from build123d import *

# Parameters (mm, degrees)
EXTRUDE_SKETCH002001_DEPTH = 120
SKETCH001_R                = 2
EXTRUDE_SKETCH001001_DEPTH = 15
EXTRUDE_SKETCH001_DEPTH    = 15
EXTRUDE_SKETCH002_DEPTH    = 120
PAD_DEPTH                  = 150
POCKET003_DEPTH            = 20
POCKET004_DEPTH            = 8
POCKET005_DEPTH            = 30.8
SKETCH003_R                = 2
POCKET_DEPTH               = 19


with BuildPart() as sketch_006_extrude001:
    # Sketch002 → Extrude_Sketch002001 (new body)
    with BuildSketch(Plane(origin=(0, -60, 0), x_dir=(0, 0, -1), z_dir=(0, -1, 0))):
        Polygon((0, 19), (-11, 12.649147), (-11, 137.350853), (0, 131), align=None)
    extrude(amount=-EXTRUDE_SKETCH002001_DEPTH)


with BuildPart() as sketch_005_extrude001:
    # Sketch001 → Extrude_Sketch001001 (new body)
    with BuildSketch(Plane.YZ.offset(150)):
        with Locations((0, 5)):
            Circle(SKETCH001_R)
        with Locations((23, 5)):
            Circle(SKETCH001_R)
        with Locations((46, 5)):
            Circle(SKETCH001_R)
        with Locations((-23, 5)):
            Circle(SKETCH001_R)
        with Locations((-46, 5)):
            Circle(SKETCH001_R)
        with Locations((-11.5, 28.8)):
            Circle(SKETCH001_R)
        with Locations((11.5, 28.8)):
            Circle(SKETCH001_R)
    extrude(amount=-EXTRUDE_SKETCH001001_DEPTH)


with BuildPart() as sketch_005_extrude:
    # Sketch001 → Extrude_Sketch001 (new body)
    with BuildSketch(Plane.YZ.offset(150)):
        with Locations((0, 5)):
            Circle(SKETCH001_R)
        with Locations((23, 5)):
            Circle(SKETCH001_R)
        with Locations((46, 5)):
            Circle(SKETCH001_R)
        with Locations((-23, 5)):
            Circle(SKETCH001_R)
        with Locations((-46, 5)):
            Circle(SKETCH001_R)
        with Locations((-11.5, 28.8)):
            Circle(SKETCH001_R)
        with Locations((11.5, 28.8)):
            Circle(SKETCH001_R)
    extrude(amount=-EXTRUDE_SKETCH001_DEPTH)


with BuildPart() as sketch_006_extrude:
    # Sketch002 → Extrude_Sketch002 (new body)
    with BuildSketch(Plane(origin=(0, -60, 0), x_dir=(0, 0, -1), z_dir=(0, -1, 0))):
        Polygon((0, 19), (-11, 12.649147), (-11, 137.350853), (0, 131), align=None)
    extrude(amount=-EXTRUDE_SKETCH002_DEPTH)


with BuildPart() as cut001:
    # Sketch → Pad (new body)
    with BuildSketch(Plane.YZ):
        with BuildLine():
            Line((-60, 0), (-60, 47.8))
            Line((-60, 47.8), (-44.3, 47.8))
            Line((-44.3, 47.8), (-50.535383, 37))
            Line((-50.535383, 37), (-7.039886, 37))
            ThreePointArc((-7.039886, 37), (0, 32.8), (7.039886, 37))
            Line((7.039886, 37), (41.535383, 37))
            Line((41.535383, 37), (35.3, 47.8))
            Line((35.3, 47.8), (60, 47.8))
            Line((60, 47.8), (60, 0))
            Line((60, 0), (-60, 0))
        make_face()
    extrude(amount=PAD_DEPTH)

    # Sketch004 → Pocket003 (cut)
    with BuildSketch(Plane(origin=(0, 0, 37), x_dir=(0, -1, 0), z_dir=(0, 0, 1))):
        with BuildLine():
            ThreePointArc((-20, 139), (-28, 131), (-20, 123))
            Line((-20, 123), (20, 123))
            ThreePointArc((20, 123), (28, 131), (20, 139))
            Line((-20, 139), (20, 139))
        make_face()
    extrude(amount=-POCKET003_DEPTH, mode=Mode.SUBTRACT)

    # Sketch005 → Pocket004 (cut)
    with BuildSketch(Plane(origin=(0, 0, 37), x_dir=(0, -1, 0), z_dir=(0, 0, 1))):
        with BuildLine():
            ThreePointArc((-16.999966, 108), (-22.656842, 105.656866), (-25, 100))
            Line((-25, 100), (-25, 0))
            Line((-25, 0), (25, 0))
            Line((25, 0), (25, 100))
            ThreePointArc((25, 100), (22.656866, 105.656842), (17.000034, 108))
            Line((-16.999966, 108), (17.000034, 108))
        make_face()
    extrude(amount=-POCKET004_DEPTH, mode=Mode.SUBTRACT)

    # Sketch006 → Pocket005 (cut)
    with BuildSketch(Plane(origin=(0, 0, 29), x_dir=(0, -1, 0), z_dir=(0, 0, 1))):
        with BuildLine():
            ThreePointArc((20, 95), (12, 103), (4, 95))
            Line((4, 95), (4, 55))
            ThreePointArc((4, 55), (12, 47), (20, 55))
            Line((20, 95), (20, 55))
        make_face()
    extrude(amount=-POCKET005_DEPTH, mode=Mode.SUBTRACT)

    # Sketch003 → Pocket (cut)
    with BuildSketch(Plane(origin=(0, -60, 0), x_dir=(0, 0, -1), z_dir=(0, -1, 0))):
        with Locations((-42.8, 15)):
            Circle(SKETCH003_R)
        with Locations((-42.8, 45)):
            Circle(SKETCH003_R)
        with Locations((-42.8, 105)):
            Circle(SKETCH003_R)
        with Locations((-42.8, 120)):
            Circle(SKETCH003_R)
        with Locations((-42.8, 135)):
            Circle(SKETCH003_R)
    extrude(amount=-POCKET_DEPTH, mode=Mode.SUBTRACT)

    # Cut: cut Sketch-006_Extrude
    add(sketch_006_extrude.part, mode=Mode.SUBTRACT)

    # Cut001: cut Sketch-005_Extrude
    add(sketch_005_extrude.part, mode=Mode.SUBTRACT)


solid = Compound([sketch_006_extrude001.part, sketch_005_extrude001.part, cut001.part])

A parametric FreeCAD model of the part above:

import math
import FreeCAD as App
import Part
import Sketcher
from FreeCAD import Vector
Q = App.Units.Quantity

doc = App.newDocument("Part")
body = doc.addObject("PartDesign::Body", "Body")

sketch1 = doc.addObject("Sketcher::SketchObject", "Sketch")
body.addObject(sketch1)
sketch1.AttachmentSupport = (doc.XZ_Plane, [""])
sketch1.MapMode = "FlatFace"
sketch1.AttachmentOffset = App.Placement(Vector(0, 0, 60), App.Rotation())
sketch1.addGeometry(Part.LineSegment(Vector(12.649147, 11, 0), Vector(19, 0, 0)), False)
sketch1.addGeometry(Part.LineSegment(Vector(19, 0, 0), Vector(131, 0, 0)), False)
sketch1.addGeometry(Part.LineSegment(Vector(131, 0, 0), Vector(137.350853, 11, 0)), False)
sketch1.addGeometry(Part.LineSegment(Vector(137.350853, 11, 0), Vector(12.649147, 11, 0)), False)
sketch1.addConstraint(Sketcher.Constraint("Coincident", 0, 2, 1, 1))
sketch1.addConstraint(Sketcher.Constraint("Coincident", 1, 2, 2, 1))
sketch1.addConstraint(Sketcher.Constraint("Coincident", 2, 2, 3, 1))
sketch1.addConstraint(Sketcher.Constraint("Coincident", 3, 2, 0, 1))
sketch1.addConstraint(Sketcher.Constraint("Horizontal", 1))
sketch1.addConstraint(Sketcher.Constraint("Horizontal", 3))
sketch1.addConstraint(Sketcher.Constraint("PointOnObject", 0, 2, -1))
sketch1.addConstraint(Sketcher.Constraint("Equal", 0, 2))
sketch1.addConstraint(Sketcher.Constraint("DistanceX", 1, 1, 1, 2, 112.0))
sketch1.addConstraint(Sketcher.Constraint("Angle", 0, Q("-60 deg")))
sketch1.addConstraint(Sketcher.Constraint("DistanceX", -1, 1, 0, 2, 19.0))
sketch1.addConstraint(Sketcher.Constraint("DistanceY", -1, 1, 2, 2, 11.0))
pad1 = doc.addObject("PartDesign::Pad", "Pad")
body.addObject(pad1)
pad1.Profile = sketch1
pad1.Length = 120
pad1.Reversed = True
body2 = doc.addObject("PartDesign::Body", "Body001")
body2.AllowCompound = True

sketch2 = doc.addObject("Sketcher::SketchObject", "Sketch001")
body2.addObject(sketch2)
sketch2.AttachmentSupport = (doc.getObject("YZ_Plane001"), [""])
sketch2.MapMode = "FlatFace"
sketch2.AttachmentOffset = App.Placement(Vector(0, 0, 150), App.Rotation())
sketch2.addGeometry(Part.Circle(Vector(0, 5, 0), Vector(0, 0, 1), 2), False)
sketch2.addGeometry(Part.Circle(Vector(23, 5, 0), Vector(0, 0, 1), 2), False)
sketch2.addGeometry(Part.Circle(Vector(46, 5, 0), Vector(0, 0, 1), 2), False)
sketch2.addGeometry(Part.Circle(Vector(-23, 5, 0), Vector(0, 0, 1), 2), False)
sketch2.addGeometry(Part.Circle(Vector(-46, 5, 0), Vector(0, 0, 1), 2), False)
sketch2.addGeometry(Part.Circle(Vector(-11.5, 28.8, 0), Vector(0, 0, 1), 2), False)
sketch2.addGeometry(Part.Circle(Vector(11.5, 28.8, 0), Vector(0, 0, 1), 2), False)
sketch2.addConstraint(Sketcher.Constraint("Equal", 0, 1))
sketch2.addConstraint(Sketcher.Constraint("Equal", 1, 2))
sketch2.addConstraint(Sketcher.Constraint("Equal", 2, 3))
sketch2.addConstraint(Sketcher.Constraint("Equal", 3, 4))
sketch2.addConstraint(Sketcher.Constraint("Equal", 4, 5))
sketch2.addConstraint(Sketcher.Constraint("Equal", 5, 6))
sketch2.addConstraint(Sketcher.Constraint("Symmetric", 1, 3, 3, 3, -2))
sketch2.addConstraint(Sketcher.Constraint("Symmetric", 2, 3, 4, 3, -2))
sketch2.addConstraint(Sketcher.Constraint("Symmetric", 5, 3, 6, 3, -2))
sketch2.addConstraint(Sketcher.Constraint("PointOnObject", 0, 3, -2))
sketch2.addConstraint(Sketcher.Constraint("Horizontal", 0, 3, 1, 3))
sketch2.addConstraint(Sketcher.Constraint("Horizontal", 1, 3, 2, 3))
sketch2.addConstraint(Sketcher.Constraint("Diameter", 0, 4.0))
sketch2.addConstraint(Sketcher.Constraint("DistanceY", -1, 1, 0, 3, 5.0))
sketch2.addConstraint(Sketcher.Constraint("DistanceX", -1, 1, 1, 3, 23.0))
sketch2.addConstraint(Sketcher.Constraint("DistanceX", -1, 1, 2, 3, 46.0))
sketch2.addConstraint(Sketcher.Constraint("DistanceX", 5, 3, 6, 3, 23.0))
sketch2.addConstraint(Sketcher.Constraint("DistanceY", -1, 1, 5, 3, 28.8))
pad2 = doc.addObject("PartDesign::Pad", "Pad001")
body2.addObject(pad2)
pad2.Profile = sketch2
pad2.Length = 15
pad2.Reversed = True
body3 = doc.addObject("PartDesign::Body", "Body002")
body3.AllowCompound = True

sketch3 = doc.addObject("Sketcher::SketchObject", "Sketch002")
body3.addObject(sketch3)
sketch3.AttachmentSupport = (doc.getObject("YZ_Plane002"), [""])
sketch3.MapMode = "FlatFace"
sketch3.AttachmentOffset = App.Placement(Vector(0, 0, 150), App.Rotation())
sketch3.addGeometry(Part.Circle(Vector(0, 5, 0), Vector(0, 0, 1), 2), False)
sketch3.addGeometry(Part.Circle(Vector(23, 5, 0), Vector(0, 0, 1), 2), False)
sketch3.addGeometry(Part.Circle(Vector(46, 5, 0), Vector(0, 0, 1), 2), False)
sketch3.addGeometry(Part.Circle(Vector(-23, 5, 0), Vector(0, 0, 1), 2), False)
sketch3.addGeometry(Part.Circle(Vector(-46, 5, 0), Vector(0, 0, 1), 2), False)
sketch3.addGeometry(Part.Circle(Vector(-11.5, 28.8, 0), Vector(0, 0, 1), 2), False)
sketch3.addGeometry(Part.Circle(Vector(11.5, 28.8, 0), Vector(0, 0, 1), 2), False)
sketch3.addConstraint(Sketcher.Constraint("Equal", 0, 1))
sketch3.addConstraint(Sketcher.Constraint("Equal", 1, 2))
sketch3.addConstraint(Sketcher.Constraint("Equal", 2, 3))
sketch3.addConstraint(Sketcher.Constraint("Equal", 3, 4))
sketch3.addConstraint(Sketcher.Constraint("Equal", 4, 5))
sketch3.addConstraint(Sketcher.Constraint("Equal", 5, 6))
sketch3.addConstraint(Sketcher.Constraint("Symmetric", 1, 3, 3, 3, -2))
sketch3.addConstraint(Sketcher.Constraint("Symmetric", 2, 3, 4, 3, -2))
sketch3.addConstraint(Sketcher.Constraint("Symmetric", 5, 3, 6, 3, -2))
sketch3.addConstraint(Sketcher.Constraint("PointOnObject", 0, 3, -2))
sketch3.addConstraint(Sketcher.Constraint("Horizontal", 0, 3, 1, 3))
sketch3.addConstraint(Sketcher.Constraint("Horizontal", 1, 3, 2, 3))
sketch3.addConstraint(Sketcher.Constraint("Diameter", 0, 4.0))
sketch3.addConstraint(Sketcher.Constraint("DistanceY", -1, 1, 0, 3, 5.0))
sketch3.addConstraint(Sketcher.Constraint("DistanceX", -1, 1, 1, 3, 23.0))
sketch3.addConstraint(Sketcher.Constraint("DistanceX", -1, 1, 2, 3, 46.0))
sketch3.addConstraint(Sketcher.Constraint("DistanceX", 5, 3, 6, 3, 23.0))
sketch3.addConstraint(Sketcher.Constraint("DistanceY", -1, 1, 5, 3, 28.8))
pad3 = doc.addObject("PartDesign::Pad", "Pad002")
body3.addObject(pad3)
pad3.Profile = sketch3
pad3.Length = 15
pad3.Reversed = True
body4 = doc.addObject("PartDesign::Body", "Body003")

sketch4 = doc.addObject("Sketcher::SketchObject", "Sketch003")
body4.addObject(sketch4)
sketch4.AttachmentSupport = (doc.getObject("XZ_Plane003"), [""])
sketch4.MapMode = "FlatFace"
sketch4.AttachmentOffset = App.Placement(Vector(0, 0, 60), App.Rotation())
sketch4.addGeometry(Part.LineSegment(Vector(12.649147, 11, 0), Vector(19, 0, 0)), False)
sketch4.addGeometry(Part.LineSegment(Vector(19, 0, 0), Vector(131, 0, 0)), False)
sketch4.addGeometry(Part.LineSegment(Vector(131, 0, 0), Vector(137.350853, 11, 0)), False)
sketch4.addGeometry(Part.LineSegment(Vector(137.350853, 11, 0), Vector(12.649147, 11, 0)), False)
sketch4.addConstraint(Sketcher.Constraint("Coincident", 0, 2, 1, 1))
sketch4.addConstraint(Sketcher.Constraint("Coincident", 1, 2, 2, 1))
sketch4.addConstraint(Sketcher.Constraint("Coincident", 2, 2, 3, 1))
sketch4.addConstraint(Sketcher.Constraint("Coincident", 3, 2, 0, 1))
sketch4.addConstraint(Sketcher.Constraint("Horizontal", 1))
sketch4.addConstraint(Sketcher.Constraint("Horizontal", 3))
sketch4.addConstraint(Sketcher.Constraint("PointOnObject", 0, 2, -1))
sketch4.addConstraint(Sketcher.Constraint("Equal", 0, 2))
sketch4.addConstraint(Sketcher.Constraint("DistanceX", 1, 1, 1, 2, 112.0))
sketch4.addConstraint(Sketcher.Constraint("Angle", 0, Q("-60 deg")))
sketch4.addConstraint(Sketcher.Constraint("DistanceX", -1, 1, 0, 2, 19.0))
sketch4.addConstraint(Sketcher.Constraint("DistanceY", -1, 1, 2, 2, 11.0))
pad4 = doc.addObject("PartDesign::Pad", "Pad003")
body4.addObject(pad4)
pad4.Profile = sketch4
pad4.Length = 120
pad4.Reversed = True
body5 = doc.addObject("PartDesign::Body", "Body004")

sketch5 = doc.addObject("Sketcher::SketchObject", "Sketch004")
body5.addObject(sketch5)
sketch5.AttachmentSupport = (doc.getObject("YZ_Plane004"), [""])
sketch5.MapMode = "FlatFace"
sketch5.addGeometry(Part.LineSegment(Vector(-60, 47.8, 0), Vector(-60, 0, 0)), False)
sketch5.addGeometry(Part.LineSegment(Vector(-60, 0, 0), Vector(60, 0, 0)), False)
sketch5.addGeometry(Part.LineSegment(Vector(60, 0, 0), Vector(60, 47.8, 0)), False)
sketch5.addGeometry(Part.LineSegment(Vector(60, 47.8, 0), Vector(35.3, 47.8, 0)), False)
sketch5.addGeometry(Part.LineSegment(Vector(35.3, 47.8, 0), Vector(41.535383, 37, 0)), False)
sketch5.addGeometry(Part.LineSegment(Vector(41.535383, 37, 0), Vector(7.039886, 37, 0)), False)
sketch5.addGeometry(Part.ArcOfCircle(Part.Circle(Vector(0, 40.799999, 0), Vector(0, 0, 1), 7.999999), math.radians(-151.640653), math.radians(-28.359347)), False)
sketch5.addGeometry(Part.LineSegment(Vector(-7.039886, 37, 0), Vector(-50.535383, 37, 0)), False)
sketch5.addGeometry(Part.LineSegment(Vector(-50.535383, 37, 0), Vector(-44.3, 47.8, 0)), False)
sketch5.addGeometry(Part.LineSegment(Vector(-44.3, 47.8, 0), Vector(-60, 47.8, 0)), False)
sketch5.addConstraint(Sketcher.Constraint("Coincident", 0, 2, 1, 1))
sketch5.addConstraint(Sketcher.Constraint("Coincident", 1, 2, 2, 1))
sketch5.addConstraint(Sketcher.Constraint("Coincident", 2, 2, 3, 1))
sketch5.addConstraint(Sketcher.Constraint("Coincident", 3, 2, 4, 1))
sketch5.addConstraint(Sketcher.Constraint("Coincident", 4, 2, 5, 1))
sketch5.addConstraint(Sketcher.Constraint("Coincident", 5, 2, 6, 2))
sketch5.addConstraint(Sketcher.Constraint("Coincident", 6, 1, 7, 1))
sketch5.addConstraint(Sketcher.Constraint("Coincident", 7, 2, 8, 1))
sketch5.addConstraint(Sketcher.Constraint("Coincident", 8, 2, 9, 1))
sketch5.addConstraint(Sketcher.Constraint("Coincident", 9, 2, 0, 1))
sketch5.addConstraint(Sketcher.Constraint("Vertical", 0))
sketch5.addConstraint(Sketcher.Constraint("Horizontal", 1))
sketch5.addConstraint(Sketcher.Constraint("Vertical", 2))
sketch5.addConstraint(Sketcher.Constraint("Horizontal", 3))
sketch5.addConstraint(Sketcher.Constraint("Horizontal", 5))
sketch5.addConstraint(Sketcher.Constraint("Horizontal", 7))
sketch5.addConstraint(Sketcher.Constraint("Horizontal", 9))
sketch5.addConstraint(Sketcher.Constraint("Symmetric", 0, 2, 1, 2, -1, 1))
sketch5.addConstraint(Sketcher.Constraint("Symmetric", 5, 2, 6, 1, -2))
sketch5.addConstraint(Sketcher.Constraint("Horizontal", 3, 2, 8, 2))
sketch5.addConstraint(Sketcher.Constraint("Equal", 4, 8))
sketch5.addConstraint(Sketcher.Constraint("Radius", 6, 7.999999))
sketch5.addConstraint(Sketcher.Constraint("DistanceX", 1, 1, 1, 2, 120.0))
sketch5.addConstraint(Sketcher.Constraint("Angle", 4, Q("-60 deg")))
sketch5.addConstraint(Sketcher.Constraint("DistanceX", 3, 2, 3, 1, 24.7))
sketch5.addConstraint(Sketcher.Constraint("DistanceX", 9, 2, 9, 1, 15.7))
sketch5.addConstraint(Sketcher.Constraint("DistanceY", 0, 2, 0, 1, 47.8))
sketch5.addConstraint(Sketcher.Constraint("DistanceY", -1, 1, 4, 2, 37.0))
sketch5.addConstraint(Sketcher.Constraint("DistanceY", 6, 3, 2, 2, 7.000001))
pad5 = doc.addObject("PartDesign::Pad", "Pad004")
body5.addObject(pad5)
pad5.Profile = sketch5
pad5.Length = 150

sketch6 = doc.addObject("Sketcher::SketchObject", "Sketch005")
body5.addObject(sketch6)
sketch6.AttachmentSupport = (doc.getObject("XY_Plane004"), [""])
sketch6.MapMode = "FlatFace"
sketch6.AttachmentOffset = App.Placement(Vector(0, 0, 37), App.Rotation())
sketch6.addGeometry(Part.ArcOfCircle(Part.Circle(Vector(131, 20, 0), Vector(0, 0, 1), 8), math.radians(0), math.radians(180)), False)
sketch6.addGeometry(Part.LineSegment(Vector(123, 20, 0), Vector(123, -20, 0)), False)
sketch6.addGeometry(Part.ArcOfCircle(Part.Circle(Vector(131, -20, 0), Vector(0, 0, 1), 8), math.radians(180), math.radians(360)), False)
sketch6.addGeometry(Part.LineSegment(Vector(139, -20, 0), Vector(139, 20, 0)), False)
sketch6.addConstraint(Sketcher.Constraint("Tangent", 0, 2, 1, 1))
sketch6.addConstraint(Sketcher.Constraint("Tangent", 1, 2, 2, 1))
sketch6.addConstraint(Sketcher.Constraint("Tangent", 2, 2, 3, 1))
sketch6.addConstraint(Sketcher.Constraint("Tangent", 3, 2, 0, 1))
sketch6.addConstraint(Sketcher.Constraint("Vertical", 1))
sketch6.addConstraint(Sketcher.Constraint("Vertical", 3))
sketch6.addConstraint(Sketcher.Constraint("Radius", 0, 8.0))
sketch6.addConstraint(Sketcher.Constraint("DistanceY", 1, 2, 1, 1, 40.0))
sketch6.addConstraint(Sketcher.Constraint("DistanceX", -1, 1, 0, 3, 131.0))
sketch6.addConstraint(Sketcher.Constraint("DistanceY", -1, 1, 0, 3, 20.0))
pocket1 = doc.addObject("PartDesign::Pocket", "Pocket")
body5.addObject(pocket1)
pocket1.Profile = sketch6
pocket1.Length = 20

sketch7 = doc.addObject("Sketcher::SketchObject", "Sketch006")
body5.addObject(sketch7)
sketch7.AttachmentSupport = (doc.getObject("XY_Plane004"), [""])
sketch7.MapMode = "FlatFace"
sketch7.AttachmentOffset = App.Placement(Vector(0, 0, 37), App.Rotation())
sketch7.addGeometry(Part.ArcOfCircle(Part.Circle(Vector(99.999999, 16.999999, 0), Vector(0, 0, 1), 8.000001), math.radians(-0.000237), math.radians(89.999994)), False)
sketch7.addGeometry(Part.LineSegment(Vector(100, 25, 0), Vector(0, 25, 0)), False)
sketch7.addGeometry(Part.LineSegment(Vector(0, 25, 0), Vector(0, -25, 0)), False)
sketch7.addGeometry(Part.LineSegment(Vector(0, -25, 0), Vector(100, -25, 0)), False)
sketch7.addGeometry(Part.ArcOfCircle(Part.Circle(Vector(99.999999, -16.999999, 0), Vector(0, 0, 1), 8.000001), math.radians(-89.999994), math.radians(-0.00025)), False)
sketch7.addGeometry(Part.LineSegment(Vector(108, -17.000034, 0), Vector(108, 16.999966, 0)), False)
sketch7.addConstraint(Sketcher.Constraint("Tangent", 0, 2, 1, 1))
sketch7.addConstraint(Sketcher.Constraint("Coincident", 1, 2, 2, 1))
sketch7.addConstraint(Sketcher.Constraint("Coincident", 2, 2, 3, 1))
sketch7.addConstraint(Sketcher.Constraint("Tangent", 3, 2, 4, 1))
sketch7.addConstraint(Sketcher.Constraint("Coincident", 4, 2, 5, 1))
sketch7.addConstraint(Sketcher.Constraint("Coincident", 5, 2, 0, 1))
sketch7.addConstraint(Sketcher.Constraint("Horizontal", 1))
sketch7.addConstraint(Sketcher.Constraint("Vertical", 2))
sketch7.addConstraint(Sketcher.Constraint("Horizontal", 3))
sketch7.addConstraint(Sketcher.Constraint("Vertical", 5))
sketch7.addConstraint(Sketcher.Constraint("Equal", 0, 4))
sketch7.addConstraint(Sketcher.Constraint("Symmetric", 1, 2, 2, 2, -1, 1))
sketch7.addConstraint(Sketcher.Constraint("Radius", 0, 8.000001))
sketch7.addConstraint(Sketcher.Constraint("DistanceX", 1, 2, 1, 1, 100.0))
sketch7.addConstraint(Sketcher.Constraint("DistanceY", 2, 2, 2, 1, 50.0))
sketch7.addConstraint(Sketcher.Constraint("DistanceY", 5, 1, 5, 2, 34.0))
sketch7.addConstraint(Sketcher.Constraint("DistanceY", 4, 2, -1, 1, 17.000034))
pocket2 = doc.addObject("PartDesign::Pocket", "Pocket001")
body5.addObject(pocket2)
pocket2.Profile = sketch7
pocket2.Length = 8

sketch8 = doc.addObject("Sketcher::SketchObject", "Sketch007")
body5.addObject(sketch8)
sketch8.AttachmentSupport = (doc.getObject("XY_Plane004"), [""])
sketch8.MapMode = "FlatFace"
sketch8.AttachmentOffset = App.Placement(Vector(0, 0, 29), App.Rotation())
sketch8.addGeometry(Part.ArcOfCircle(Part.Circle(Vector(95, -12, 0), Vector(0, 0, 1), 8), math.radians(-90), math.radians(90)), False)
sketch8.addGeometry(Part.LineSegment(Vector(95, -4, 0), Vector(55, -4, 0)), False)
sketch8.addGeometry(Part.ArcOfCircle(Part.Circle(Vector(55, -12, 0), Vector(0, 0, 1), 8), math.radians(90), math.radians(270)), False)
sketch8.addGeometry(Part.LineSegment(Vector(55, -20, 0), Vector(95, -20, 0)), False)
sketch8.addConstraint(Sketcher.Constraint("Tangent", 0, 2, 1, 1))
sketch8.addConstraint(Sketcher.Constraint("Tangent", 1, 2, 2, 1))
sketch8.addConstraint(Sketcher.Constraint("Tangent", 2, 2, 3, 1))
sketch8.addConstraint(Sketcher.Constraint("Tangent", 3, 2, 0, 1))
sketch8.addConstraint(Sketcher.Constraint("Horizontal", 1))
sketch8.addConstraint(Sketcher.Constraint("Horizontal", 3))
sketch8.addConstraint(Sketcher.Constraint("Radius", 0, 8.0))
sketch8.addConstraint(Sketcher.Constraint("DistanceX", 1, 2, 1, 1, 40.0))
sketch8.addConstraint(Sketcher.Constraint("DistanceX", -1, 1, 0, 3, 95.0))
sketch8.addConstraint(Sketcher.Constraint("DistanceY", 0, 3, -1, 1, 12.0))
pocket3 = doc.addObject("PartDesign::Pocket", "Pocket002")
body5.addObject(pocket3)
pocket3.Profile = sketch8
pocket3.Length = 30.8

sketch9 = doc.addObject("Sketcher::SketchObject", "Sketch008")
body5.addObject(sketch9)
sketch9.AttachmentSupport = (doc.getObject("XZ_Plane004"), [""])
sketch9.MapMode = "FlatFace"
sketch9.AttachmentOffset = App.Placement(Vector(0, 0, 60), App.Rotation())
sketch9.addGeometry(Part.Circle(Vector(15, 42.8, 0), Vector(0, 0, 1), 2), False)
sketch9.addGeometry(Part.Circle(Vector(45, 42.8, 0), Vector(0, 0, 1), 2), False)
sketch9.addGeometry(Part.Circle(Vector(105, 42.8, 0), Vector(0, 0, 1), 2), False)
sketch9.addGeometry(Part.Circle(Vector(120, 42.8, 0), Vector(0, 0, 1), 2), False)
sketch9.addGeometry(Part.Circle(Vector(135, 42.8, 0), Vector(0, 0, 1), 2), False)
sketch9.addConstraint(Sketcher.Constraint("Equal", 0, 1))
sketch9.addConstraint(Sketcher.Constraint("Equal", 1, 2))
sketch9.addConstraint(Sketcher.Constraint("Equal", 2, 3))
sketch9.addConstraint(Sketcher.Constraint("Equal", 3, 4))
sketch9.addConstraint(Sketcher.Constraint("Horizontal", 0, 3, 1, 3))
sketch9.addConstraint(Sketcher.Constraint("Horizontal", 1, 3, 2, 3))
sketch9.addConstraint(Sketcher.Constraint("Horizontal", 2, 3, 3, 3))
sketch9.addConstraint(Sketcher.Constraint("Horizontal", 3, 3, 4, 3))
sketch9.addConstraint(Sketcher.Constraint("Diameter", 0, 4.0))
sketch9.addConstraint(Sketcher.Constraint("DistanceX", -1, 1, 0, 3, 15.0))
sketch9.addConstraint(Sketcher.Constraint("DistanceX", -1, 1, 1, 3, 45.0))
sketch9.addConstraint(Sketcher.Constraint("DistanceX", -1, 1, 2, 3, 105.0))
sketch9.addConstraint(Sketcher.Constraint("DistanceX", -1, 1, 3, 3, 120.0))
sketch9.addConstraint(Sketcher.Constraint("DistanceX", -1, 1, 4, 3, 135.0))
sketch9.addConstraint(Sketcher.Constraint("DistanceY", -1, 1, 0, 3, 42.8))
pocket4 = doc.addObject("PartDesign::Pocket", "Pocket003")
body5.addObject(pocket4)
pocket4.Profile = sketch9
pocket4.Length = 19
doc.recompute()

boolean = doc.addObject("PartDesign::Boolean", "Boolean")
body5.addObject(boolean)
boolean.Type = "Cut"
boolean.addObjects([body4])
doc.recompute()

boolean2 = doc.addObject("PartDesign::Boolean", "Boolean001")
body5.addObject(boolean2)
boolean2.Type = "Cut"
boolean2.addObjects([body3])

doc.recompute()
